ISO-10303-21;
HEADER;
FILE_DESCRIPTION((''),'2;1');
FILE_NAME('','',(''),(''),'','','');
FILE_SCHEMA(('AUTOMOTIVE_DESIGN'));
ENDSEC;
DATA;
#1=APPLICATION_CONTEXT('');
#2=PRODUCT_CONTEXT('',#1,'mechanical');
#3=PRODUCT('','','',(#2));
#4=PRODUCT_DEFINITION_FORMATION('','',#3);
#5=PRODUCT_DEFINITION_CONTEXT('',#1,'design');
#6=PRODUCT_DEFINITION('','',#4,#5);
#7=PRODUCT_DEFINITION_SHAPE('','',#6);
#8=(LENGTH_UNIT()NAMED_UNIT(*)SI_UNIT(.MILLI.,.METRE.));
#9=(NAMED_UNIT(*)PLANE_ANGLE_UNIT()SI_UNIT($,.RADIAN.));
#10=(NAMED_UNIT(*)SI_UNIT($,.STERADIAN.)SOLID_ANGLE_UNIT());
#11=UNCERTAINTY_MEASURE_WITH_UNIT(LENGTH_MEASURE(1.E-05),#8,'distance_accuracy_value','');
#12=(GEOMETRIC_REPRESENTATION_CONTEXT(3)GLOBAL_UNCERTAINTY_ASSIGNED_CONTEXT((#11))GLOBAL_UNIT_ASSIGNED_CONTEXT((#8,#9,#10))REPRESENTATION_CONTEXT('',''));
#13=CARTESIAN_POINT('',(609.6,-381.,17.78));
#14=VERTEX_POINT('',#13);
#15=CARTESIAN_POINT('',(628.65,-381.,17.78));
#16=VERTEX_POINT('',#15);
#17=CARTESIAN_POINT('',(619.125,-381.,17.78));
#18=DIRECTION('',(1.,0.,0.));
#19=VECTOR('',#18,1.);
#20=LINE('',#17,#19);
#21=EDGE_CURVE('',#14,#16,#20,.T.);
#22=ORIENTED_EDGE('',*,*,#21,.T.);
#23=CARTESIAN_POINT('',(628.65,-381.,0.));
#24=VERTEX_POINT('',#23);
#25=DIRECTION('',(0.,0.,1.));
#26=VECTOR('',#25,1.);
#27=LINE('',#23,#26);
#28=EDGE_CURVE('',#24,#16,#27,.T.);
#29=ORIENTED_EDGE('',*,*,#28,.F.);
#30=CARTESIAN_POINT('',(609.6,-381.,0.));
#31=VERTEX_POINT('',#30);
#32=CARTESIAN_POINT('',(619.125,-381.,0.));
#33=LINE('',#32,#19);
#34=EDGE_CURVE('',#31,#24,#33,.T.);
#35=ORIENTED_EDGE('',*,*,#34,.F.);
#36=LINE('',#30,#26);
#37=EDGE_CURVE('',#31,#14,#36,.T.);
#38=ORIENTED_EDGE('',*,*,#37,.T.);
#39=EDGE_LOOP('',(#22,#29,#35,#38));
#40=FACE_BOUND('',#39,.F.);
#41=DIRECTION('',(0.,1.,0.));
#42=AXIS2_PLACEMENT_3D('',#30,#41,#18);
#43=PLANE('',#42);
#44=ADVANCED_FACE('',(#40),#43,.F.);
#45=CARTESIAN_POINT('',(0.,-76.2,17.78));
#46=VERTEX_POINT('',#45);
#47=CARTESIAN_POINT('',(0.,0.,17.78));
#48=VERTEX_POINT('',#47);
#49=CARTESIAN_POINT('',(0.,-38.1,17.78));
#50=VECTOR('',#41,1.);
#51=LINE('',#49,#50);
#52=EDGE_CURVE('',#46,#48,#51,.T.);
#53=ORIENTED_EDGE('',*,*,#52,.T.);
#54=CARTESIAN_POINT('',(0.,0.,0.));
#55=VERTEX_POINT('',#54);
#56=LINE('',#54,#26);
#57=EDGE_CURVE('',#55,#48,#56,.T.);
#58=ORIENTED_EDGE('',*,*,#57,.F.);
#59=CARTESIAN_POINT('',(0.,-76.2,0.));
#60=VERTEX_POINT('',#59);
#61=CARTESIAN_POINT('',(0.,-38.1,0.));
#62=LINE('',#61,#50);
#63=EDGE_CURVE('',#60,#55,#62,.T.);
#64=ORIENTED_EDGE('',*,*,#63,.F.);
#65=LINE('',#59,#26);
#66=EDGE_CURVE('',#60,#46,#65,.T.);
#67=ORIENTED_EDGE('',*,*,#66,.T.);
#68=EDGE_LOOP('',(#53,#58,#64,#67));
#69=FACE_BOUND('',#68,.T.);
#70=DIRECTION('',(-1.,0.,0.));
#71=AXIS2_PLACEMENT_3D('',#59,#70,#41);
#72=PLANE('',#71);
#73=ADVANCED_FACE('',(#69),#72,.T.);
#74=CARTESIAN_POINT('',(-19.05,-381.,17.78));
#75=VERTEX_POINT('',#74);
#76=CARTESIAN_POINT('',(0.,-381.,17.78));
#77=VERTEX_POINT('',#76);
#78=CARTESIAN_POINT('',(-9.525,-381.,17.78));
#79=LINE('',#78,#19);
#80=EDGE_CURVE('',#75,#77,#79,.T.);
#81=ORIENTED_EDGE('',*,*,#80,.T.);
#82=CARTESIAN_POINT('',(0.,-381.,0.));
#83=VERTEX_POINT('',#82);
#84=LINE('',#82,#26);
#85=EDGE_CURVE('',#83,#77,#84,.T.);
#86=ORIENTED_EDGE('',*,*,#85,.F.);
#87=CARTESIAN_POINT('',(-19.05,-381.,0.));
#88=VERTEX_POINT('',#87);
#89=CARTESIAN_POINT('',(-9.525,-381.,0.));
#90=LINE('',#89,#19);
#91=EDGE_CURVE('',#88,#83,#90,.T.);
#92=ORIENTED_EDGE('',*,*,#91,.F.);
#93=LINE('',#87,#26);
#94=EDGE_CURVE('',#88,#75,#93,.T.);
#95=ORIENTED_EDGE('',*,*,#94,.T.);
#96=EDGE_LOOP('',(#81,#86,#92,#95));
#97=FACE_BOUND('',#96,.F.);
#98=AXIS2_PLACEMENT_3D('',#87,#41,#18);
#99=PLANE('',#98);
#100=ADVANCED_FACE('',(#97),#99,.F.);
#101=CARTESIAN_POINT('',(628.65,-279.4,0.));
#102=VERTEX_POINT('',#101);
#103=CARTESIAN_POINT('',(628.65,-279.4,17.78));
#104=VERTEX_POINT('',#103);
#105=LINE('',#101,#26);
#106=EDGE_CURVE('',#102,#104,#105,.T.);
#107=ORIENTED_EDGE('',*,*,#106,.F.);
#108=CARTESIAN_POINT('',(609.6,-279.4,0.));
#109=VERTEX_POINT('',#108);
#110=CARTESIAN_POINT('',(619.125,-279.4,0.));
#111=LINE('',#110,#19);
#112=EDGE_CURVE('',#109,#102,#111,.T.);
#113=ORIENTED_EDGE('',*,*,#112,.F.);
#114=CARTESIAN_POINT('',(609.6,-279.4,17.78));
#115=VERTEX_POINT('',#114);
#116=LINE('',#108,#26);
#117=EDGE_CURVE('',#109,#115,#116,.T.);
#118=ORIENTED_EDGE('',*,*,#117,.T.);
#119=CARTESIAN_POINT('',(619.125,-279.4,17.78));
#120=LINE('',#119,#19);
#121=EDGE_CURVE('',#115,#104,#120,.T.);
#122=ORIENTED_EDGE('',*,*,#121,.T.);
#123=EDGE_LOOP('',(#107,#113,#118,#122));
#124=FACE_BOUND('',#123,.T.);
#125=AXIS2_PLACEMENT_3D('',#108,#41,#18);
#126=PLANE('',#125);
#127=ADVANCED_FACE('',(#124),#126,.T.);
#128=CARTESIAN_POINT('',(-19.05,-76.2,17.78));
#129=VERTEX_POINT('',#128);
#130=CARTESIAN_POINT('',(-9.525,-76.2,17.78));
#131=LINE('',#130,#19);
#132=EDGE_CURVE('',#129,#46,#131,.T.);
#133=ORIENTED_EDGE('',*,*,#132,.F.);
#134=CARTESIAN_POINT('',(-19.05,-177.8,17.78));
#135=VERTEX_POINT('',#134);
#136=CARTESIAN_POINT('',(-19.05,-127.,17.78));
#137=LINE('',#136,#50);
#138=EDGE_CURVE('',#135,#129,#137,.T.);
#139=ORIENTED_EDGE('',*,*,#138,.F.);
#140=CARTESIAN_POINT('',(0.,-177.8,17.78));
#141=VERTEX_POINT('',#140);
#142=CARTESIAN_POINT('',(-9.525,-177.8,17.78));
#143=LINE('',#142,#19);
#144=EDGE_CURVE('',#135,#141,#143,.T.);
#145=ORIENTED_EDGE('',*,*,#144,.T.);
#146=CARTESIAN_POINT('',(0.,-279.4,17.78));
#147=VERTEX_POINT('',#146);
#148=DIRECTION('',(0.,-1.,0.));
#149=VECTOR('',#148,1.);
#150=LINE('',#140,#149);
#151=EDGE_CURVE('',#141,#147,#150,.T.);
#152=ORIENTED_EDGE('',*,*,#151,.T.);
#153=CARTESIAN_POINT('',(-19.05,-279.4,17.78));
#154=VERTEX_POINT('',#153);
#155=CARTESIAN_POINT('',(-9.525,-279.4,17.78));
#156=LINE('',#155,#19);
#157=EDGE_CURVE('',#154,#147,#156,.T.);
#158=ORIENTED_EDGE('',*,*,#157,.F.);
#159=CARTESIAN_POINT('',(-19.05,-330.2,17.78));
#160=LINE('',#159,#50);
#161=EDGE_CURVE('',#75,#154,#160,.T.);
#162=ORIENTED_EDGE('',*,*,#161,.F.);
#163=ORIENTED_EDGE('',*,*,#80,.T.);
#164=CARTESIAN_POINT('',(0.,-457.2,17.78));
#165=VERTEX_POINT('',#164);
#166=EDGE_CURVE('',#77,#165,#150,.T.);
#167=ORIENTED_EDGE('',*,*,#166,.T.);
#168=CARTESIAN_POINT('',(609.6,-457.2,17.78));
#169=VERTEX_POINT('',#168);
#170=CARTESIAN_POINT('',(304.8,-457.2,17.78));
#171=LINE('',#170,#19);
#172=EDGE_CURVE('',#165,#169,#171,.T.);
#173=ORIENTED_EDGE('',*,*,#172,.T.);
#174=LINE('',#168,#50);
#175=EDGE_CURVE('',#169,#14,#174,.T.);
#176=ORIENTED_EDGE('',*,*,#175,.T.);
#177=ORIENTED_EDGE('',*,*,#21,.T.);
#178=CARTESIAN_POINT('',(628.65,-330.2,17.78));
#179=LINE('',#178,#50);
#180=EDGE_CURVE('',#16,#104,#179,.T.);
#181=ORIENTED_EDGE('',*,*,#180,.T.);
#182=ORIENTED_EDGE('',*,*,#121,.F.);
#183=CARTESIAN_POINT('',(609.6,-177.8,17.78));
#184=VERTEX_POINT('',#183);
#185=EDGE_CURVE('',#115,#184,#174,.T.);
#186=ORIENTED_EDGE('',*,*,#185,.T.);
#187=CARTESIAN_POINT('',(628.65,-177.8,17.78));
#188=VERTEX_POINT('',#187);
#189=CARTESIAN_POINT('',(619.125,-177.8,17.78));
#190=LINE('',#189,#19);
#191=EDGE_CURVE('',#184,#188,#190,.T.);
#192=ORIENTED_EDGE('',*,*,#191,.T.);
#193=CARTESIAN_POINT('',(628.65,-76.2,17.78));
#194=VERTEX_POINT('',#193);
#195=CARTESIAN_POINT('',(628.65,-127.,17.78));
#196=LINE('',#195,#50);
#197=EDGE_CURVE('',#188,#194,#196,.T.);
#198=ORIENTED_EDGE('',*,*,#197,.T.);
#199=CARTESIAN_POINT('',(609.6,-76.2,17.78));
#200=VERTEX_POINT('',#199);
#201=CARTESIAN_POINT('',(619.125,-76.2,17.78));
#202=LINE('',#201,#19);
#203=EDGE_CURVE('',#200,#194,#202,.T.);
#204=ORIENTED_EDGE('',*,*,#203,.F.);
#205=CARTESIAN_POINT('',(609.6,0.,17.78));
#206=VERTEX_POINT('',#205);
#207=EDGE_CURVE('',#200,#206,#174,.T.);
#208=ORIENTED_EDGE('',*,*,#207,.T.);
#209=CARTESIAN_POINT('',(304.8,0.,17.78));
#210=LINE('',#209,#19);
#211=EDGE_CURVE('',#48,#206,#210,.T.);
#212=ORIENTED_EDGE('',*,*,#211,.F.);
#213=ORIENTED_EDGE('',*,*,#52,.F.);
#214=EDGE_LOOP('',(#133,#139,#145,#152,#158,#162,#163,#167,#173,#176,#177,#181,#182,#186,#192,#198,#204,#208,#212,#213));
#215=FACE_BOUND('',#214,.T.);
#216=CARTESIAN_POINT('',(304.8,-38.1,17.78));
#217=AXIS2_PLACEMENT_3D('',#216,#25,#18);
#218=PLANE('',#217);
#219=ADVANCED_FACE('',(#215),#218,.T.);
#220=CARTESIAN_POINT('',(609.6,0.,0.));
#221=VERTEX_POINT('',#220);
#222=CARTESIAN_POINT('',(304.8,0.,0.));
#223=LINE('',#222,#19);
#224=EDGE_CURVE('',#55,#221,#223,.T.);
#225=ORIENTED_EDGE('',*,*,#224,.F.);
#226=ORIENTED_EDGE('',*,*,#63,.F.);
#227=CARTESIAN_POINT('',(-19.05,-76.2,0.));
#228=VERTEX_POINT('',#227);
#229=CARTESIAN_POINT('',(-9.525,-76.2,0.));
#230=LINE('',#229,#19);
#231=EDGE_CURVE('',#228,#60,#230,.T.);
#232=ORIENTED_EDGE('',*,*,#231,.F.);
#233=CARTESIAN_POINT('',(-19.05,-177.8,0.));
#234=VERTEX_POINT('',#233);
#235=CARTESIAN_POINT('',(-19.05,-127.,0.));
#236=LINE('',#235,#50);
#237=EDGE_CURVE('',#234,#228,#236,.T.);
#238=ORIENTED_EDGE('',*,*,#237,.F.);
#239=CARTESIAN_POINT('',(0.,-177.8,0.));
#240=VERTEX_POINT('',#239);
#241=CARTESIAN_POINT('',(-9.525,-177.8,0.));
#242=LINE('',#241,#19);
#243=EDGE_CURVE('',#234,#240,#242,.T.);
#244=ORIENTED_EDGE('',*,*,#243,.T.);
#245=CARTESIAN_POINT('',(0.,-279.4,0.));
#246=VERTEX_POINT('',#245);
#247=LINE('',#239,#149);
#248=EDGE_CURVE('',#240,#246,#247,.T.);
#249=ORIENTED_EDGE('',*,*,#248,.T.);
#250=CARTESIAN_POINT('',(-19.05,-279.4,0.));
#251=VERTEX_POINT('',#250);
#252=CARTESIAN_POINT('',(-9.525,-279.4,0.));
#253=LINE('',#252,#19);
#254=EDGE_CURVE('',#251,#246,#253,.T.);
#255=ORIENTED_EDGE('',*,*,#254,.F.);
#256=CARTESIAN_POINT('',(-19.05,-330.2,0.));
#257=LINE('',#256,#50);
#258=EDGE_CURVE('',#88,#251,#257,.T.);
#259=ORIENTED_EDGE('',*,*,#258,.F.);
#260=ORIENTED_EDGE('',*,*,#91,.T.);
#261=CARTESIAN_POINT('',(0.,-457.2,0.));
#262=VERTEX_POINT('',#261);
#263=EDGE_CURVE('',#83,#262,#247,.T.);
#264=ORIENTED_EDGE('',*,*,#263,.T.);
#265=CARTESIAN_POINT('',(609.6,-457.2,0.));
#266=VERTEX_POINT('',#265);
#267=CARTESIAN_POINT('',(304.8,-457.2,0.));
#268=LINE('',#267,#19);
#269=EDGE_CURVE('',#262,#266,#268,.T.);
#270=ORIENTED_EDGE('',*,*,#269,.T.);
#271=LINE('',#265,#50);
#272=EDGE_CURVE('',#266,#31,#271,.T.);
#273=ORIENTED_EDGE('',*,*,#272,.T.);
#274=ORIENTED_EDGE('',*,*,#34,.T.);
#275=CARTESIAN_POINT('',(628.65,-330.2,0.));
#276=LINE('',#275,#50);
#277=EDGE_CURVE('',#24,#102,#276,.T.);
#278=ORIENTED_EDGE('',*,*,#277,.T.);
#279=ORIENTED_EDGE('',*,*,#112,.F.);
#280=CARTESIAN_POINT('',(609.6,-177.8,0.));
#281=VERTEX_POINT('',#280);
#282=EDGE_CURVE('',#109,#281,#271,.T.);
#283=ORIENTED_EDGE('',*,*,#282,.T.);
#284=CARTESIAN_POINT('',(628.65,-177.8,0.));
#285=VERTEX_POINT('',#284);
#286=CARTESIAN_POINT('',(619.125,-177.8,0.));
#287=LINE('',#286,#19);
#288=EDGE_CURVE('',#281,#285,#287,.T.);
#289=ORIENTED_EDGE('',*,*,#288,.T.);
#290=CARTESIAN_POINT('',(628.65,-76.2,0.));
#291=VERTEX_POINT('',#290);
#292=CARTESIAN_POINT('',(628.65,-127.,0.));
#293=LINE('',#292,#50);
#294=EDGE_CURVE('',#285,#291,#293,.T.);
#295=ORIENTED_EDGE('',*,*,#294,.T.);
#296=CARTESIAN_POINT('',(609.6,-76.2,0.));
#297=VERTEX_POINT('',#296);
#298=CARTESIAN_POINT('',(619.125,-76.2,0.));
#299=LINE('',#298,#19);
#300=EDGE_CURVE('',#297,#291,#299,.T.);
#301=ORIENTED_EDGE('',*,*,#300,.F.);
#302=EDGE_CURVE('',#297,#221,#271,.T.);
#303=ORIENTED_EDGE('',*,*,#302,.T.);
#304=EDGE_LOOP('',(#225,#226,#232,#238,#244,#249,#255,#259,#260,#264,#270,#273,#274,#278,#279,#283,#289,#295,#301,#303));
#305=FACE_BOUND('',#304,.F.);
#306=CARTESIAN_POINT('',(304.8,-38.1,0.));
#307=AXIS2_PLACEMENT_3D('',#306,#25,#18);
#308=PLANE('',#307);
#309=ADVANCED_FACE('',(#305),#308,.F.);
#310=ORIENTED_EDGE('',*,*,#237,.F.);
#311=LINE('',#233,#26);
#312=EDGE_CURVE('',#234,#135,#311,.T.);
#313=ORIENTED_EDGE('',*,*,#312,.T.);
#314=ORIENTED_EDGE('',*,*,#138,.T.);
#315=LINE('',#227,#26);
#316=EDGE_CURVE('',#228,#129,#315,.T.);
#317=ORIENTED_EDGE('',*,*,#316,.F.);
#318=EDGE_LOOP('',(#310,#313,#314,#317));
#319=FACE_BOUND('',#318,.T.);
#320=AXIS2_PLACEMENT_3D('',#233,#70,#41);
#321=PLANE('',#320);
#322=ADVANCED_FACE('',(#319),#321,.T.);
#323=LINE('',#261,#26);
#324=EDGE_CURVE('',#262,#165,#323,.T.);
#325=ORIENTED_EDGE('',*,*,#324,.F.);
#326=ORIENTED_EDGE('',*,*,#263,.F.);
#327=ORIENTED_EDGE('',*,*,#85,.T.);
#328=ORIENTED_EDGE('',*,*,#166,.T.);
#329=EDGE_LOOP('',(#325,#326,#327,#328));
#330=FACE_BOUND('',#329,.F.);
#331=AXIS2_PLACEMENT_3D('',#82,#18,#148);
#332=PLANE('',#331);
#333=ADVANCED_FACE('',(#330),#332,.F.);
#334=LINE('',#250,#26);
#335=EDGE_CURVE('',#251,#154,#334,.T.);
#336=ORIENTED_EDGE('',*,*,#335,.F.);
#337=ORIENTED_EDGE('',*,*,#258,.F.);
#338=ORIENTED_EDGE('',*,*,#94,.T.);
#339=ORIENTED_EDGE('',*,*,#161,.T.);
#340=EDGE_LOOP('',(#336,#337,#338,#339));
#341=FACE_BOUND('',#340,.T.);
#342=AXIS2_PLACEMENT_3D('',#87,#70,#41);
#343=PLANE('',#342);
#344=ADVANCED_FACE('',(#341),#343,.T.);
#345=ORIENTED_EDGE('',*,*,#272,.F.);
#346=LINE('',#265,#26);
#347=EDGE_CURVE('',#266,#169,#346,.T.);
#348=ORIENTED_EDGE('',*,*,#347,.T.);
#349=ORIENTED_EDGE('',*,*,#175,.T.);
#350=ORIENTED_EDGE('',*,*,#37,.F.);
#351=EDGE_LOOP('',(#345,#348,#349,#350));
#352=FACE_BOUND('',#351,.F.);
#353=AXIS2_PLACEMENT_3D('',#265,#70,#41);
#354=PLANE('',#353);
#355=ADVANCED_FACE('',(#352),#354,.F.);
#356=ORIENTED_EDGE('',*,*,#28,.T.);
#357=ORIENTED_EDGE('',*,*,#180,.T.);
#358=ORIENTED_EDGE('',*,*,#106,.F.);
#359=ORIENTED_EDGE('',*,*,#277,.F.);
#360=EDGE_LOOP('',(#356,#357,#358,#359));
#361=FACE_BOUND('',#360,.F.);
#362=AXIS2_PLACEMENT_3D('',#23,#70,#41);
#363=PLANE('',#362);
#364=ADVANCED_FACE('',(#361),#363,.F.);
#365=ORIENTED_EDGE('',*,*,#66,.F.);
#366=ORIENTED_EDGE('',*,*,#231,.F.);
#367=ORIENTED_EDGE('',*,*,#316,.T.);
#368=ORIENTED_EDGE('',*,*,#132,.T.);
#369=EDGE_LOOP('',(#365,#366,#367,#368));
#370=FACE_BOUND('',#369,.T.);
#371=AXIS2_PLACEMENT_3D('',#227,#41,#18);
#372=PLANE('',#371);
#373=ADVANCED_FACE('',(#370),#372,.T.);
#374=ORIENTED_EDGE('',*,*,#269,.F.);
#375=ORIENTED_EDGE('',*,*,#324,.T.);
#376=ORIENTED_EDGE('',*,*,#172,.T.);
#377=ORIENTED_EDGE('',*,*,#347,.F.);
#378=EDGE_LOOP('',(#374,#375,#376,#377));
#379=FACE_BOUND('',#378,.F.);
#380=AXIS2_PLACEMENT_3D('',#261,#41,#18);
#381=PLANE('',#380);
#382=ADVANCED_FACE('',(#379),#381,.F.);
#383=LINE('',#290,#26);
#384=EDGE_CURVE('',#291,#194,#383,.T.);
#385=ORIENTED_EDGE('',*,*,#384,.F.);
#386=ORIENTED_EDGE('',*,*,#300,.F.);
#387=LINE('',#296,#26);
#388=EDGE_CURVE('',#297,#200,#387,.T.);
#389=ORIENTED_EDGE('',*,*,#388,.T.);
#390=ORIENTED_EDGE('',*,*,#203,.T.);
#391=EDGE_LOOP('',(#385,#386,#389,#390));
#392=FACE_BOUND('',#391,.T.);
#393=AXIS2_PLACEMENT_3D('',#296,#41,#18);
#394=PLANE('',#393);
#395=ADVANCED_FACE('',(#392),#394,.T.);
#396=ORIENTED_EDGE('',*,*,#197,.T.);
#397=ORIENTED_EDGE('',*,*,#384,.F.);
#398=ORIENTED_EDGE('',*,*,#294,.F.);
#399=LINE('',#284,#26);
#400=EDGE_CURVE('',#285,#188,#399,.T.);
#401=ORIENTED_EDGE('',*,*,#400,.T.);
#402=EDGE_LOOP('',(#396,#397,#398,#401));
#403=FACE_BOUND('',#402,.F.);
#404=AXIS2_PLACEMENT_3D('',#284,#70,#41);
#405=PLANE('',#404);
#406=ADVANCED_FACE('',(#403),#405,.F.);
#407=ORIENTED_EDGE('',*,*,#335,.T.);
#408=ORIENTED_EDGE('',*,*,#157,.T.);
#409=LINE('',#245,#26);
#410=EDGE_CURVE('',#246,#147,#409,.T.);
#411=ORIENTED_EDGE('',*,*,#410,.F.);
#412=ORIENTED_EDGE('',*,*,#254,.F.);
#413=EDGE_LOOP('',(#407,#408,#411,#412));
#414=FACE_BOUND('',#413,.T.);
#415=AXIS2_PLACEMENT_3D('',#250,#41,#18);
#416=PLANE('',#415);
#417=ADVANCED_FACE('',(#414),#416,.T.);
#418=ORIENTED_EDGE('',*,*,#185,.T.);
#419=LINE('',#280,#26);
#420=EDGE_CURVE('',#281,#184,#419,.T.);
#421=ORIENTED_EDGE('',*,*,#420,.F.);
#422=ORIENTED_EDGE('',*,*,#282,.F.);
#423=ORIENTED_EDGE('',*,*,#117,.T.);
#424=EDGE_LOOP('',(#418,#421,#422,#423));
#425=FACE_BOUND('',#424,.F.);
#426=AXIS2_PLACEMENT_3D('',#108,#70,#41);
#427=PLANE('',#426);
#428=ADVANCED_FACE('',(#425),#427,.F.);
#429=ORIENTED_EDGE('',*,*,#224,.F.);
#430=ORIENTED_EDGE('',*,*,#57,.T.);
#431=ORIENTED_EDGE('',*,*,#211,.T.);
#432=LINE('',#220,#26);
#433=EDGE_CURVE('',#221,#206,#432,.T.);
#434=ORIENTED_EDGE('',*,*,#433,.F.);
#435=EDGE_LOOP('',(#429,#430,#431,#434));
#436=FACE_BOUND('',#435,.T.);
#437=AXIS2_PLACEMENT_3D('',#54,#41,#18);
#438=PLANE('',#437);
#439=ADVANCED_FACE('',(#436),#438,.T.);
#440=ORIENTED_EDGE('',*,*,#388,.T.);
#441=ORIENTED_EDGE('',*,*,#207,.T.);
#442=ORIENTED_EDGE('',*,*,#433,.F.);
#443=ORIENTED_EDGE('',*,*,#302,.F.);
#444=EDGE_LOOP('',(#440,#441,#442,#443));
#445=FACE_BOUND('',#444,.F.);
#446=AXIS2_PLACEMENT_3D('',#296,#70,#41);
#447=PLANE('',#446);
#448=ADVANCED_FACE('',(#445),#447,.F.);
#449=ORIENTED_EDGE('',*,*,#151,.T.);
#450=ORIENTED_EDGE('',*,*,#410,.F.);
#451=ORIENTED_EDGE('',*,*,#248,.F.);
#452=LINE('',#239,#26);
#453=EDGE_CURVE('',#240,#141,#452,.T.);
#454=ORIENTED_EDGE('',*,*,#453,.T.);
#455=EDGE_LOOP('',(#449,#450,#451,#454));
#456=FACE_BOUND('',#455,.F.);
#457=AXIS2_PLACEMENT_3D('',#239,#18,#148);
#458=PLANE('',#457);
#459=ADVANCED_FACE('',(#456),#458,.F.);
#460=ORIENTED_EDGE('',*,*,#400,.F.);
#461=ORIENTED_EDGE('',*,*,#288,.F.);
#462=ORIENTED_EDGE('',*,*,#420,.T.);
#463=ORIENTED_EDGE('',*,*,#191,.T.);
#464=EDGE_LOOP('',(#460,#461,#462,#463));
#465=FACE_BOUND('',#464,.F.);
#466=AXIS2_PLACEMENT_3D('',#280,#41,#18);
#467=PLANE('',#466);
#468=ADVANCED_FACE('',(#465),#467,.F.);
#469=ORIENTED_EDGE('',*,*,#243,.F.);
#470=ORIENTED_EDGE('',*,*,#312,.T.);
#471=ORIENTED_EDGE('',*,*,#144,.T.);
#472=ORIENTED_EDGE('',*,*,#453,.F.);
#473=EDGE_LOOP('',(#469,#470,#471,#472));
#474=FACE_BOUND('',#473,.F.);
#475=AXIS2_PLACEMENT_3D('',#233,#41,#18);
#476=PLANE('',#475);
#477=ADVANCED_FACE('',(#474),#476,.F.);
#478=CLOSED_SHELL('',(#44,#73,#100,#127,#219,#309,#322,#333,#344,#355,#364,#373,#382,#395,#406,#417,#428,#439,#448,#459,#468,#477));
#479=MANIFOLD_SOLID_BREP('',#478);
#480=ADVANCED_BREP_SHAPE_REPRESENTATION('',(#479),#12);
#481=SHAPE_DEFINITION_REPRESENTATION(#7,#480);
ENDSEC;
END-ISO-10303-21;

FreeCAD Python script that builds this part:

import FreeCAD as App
import Part
import Sketcher
from FreeCAD import Vector
Q = App.Units.Quantity


def add_polygon(sketch, points):
    """Adds a closed chain of lines whose ends are joined by coincident constraints."""
    first, n = sketch.GeometryCount, len(points)
    for a, b in zip(points, points[1:] + points[:1]):
        sketch.addGeometry(Part.LineSegment(App.Vector(*a, 0), App.Vector(*b, 0)), False)
    for i in range(n):
        sketch.addConstraint(Sketcher.Constraint("Coincident", first + i, 2, first + (i + 1) % n, 1))

doc = App.newDocument("Part")
body = doc.addObject("PartDesign::Body", "Body")

# Sketch on XY plane
sketch1 = body.newObject("Sketcher::SketchObject", "Sketch")
sketch1.AttachmentSupport = (doc.getObject("XY_Plane"), [""])
sketch1.MapMode = "FlatFace"
add_polygon(sketch1, [(0, 0), (0, -76), (-19, -76), (-19, -178), (0, -178), (0, -279), (-19, -279), (-19, -381), (0, -381), (0, -457), (610, -457), (610, -381), (629, -381), (629, -279), (610, -279), (610, -178), (629, -178), (629, -76), (610, -76), (610, 0)])  # lines 0-19
sketch1.addConstraint([
    Sketcher.Constraint("Vertical", 0),
    Sketcher.Constraint("Horizontal", 1),
    Sketcher.Constraint("Vertical", 2),
    Sketcher.Constraint("Horizontal", 3),
    Sketcher.Constraint("Vertical", 4),
    Sketcher.Constraint("Horizontal", 5),
    Sketcher.Constraint("Vertical", 6),
    Sketcher.Constraint("Horizontal", 7),
    Sketcher.Constraint("Vertical", 8),
    Sketcher.Constraint("Horizontal", 9),
    Sketcher.Constraint("Vertical", 10),
    Sketcher.Constraint("Horizontal", 11),
    Sketcher.Constraint("Vertical", 12),
    Sketcher.Constraint("Horizontal", 13),
    Sketcher.Constraint("Vertical", 14),
    Sketcher.Constraint("Horizontal", 15),
    Sketcher.Constraint("Vertical", 16),
    Sketcher.Constraint("Horizontal", 17),
    Sketcher.Constraint("Vertical", 18),
    Sketcher.Constraint("Horizontal", 19),
    Sketcher.Constraint("Coincident", 19, 2, -1, 1),
    Sketcher.Constraint("PointOnObject", 3, 2, -2),
    Sketcher.Constraint("PointOnObject", 7, 2, -2),
    Sketcher.Constraint("Horizontal", 7, 2, 10, 2),
    Sketcher.Constraint("Horizontal", 5, 2, 12, 2),
    Sketcher.Constraint("Horizontal", 3, 2, 14, 2),
    Sketcher.Constraint("Horizontal", 1, 2, 16, 2),
    Sketcher.Constraint("Vertical", 2, 2, 5, 2),
    Sketcher.Constraint("Vertical", 10, 2, 13, 2),
    Sketcher.Constraint("Vertical", 12, 2, 15, 2),
    Sketcher.Constraint("Vertical", 14, 2, 17, 2),
    Sketcher.Constraint("Equal", 7, 11),
    Sketcher.Constraint("Equal", 2, 4),
    Sketcher.Constraint("Equal", 4, 6),
    Sketcher.Constraint("Equal", 0, 8),
    Sketcher.Constraint("DistanceX", 9, 1, 9, 2, Q("24 in")),
    Sketcher.Constraint("DistanceY", 0, 2, 0, 1, Q("3 in")),
    Sketcher.Constraint("DistanceY", 2, 2, 2, 1, Q("4 in")),
    Sketcher.Constraint("DistanceX", 1, 2, 1, 1, Q("0.75 in")),
])
pad1 = body.newObject("PartDesign::Pad", "Pad")
pad1.Profile = sketch1
pad1.Length = Q("0.7 in")

doc.recompute()
